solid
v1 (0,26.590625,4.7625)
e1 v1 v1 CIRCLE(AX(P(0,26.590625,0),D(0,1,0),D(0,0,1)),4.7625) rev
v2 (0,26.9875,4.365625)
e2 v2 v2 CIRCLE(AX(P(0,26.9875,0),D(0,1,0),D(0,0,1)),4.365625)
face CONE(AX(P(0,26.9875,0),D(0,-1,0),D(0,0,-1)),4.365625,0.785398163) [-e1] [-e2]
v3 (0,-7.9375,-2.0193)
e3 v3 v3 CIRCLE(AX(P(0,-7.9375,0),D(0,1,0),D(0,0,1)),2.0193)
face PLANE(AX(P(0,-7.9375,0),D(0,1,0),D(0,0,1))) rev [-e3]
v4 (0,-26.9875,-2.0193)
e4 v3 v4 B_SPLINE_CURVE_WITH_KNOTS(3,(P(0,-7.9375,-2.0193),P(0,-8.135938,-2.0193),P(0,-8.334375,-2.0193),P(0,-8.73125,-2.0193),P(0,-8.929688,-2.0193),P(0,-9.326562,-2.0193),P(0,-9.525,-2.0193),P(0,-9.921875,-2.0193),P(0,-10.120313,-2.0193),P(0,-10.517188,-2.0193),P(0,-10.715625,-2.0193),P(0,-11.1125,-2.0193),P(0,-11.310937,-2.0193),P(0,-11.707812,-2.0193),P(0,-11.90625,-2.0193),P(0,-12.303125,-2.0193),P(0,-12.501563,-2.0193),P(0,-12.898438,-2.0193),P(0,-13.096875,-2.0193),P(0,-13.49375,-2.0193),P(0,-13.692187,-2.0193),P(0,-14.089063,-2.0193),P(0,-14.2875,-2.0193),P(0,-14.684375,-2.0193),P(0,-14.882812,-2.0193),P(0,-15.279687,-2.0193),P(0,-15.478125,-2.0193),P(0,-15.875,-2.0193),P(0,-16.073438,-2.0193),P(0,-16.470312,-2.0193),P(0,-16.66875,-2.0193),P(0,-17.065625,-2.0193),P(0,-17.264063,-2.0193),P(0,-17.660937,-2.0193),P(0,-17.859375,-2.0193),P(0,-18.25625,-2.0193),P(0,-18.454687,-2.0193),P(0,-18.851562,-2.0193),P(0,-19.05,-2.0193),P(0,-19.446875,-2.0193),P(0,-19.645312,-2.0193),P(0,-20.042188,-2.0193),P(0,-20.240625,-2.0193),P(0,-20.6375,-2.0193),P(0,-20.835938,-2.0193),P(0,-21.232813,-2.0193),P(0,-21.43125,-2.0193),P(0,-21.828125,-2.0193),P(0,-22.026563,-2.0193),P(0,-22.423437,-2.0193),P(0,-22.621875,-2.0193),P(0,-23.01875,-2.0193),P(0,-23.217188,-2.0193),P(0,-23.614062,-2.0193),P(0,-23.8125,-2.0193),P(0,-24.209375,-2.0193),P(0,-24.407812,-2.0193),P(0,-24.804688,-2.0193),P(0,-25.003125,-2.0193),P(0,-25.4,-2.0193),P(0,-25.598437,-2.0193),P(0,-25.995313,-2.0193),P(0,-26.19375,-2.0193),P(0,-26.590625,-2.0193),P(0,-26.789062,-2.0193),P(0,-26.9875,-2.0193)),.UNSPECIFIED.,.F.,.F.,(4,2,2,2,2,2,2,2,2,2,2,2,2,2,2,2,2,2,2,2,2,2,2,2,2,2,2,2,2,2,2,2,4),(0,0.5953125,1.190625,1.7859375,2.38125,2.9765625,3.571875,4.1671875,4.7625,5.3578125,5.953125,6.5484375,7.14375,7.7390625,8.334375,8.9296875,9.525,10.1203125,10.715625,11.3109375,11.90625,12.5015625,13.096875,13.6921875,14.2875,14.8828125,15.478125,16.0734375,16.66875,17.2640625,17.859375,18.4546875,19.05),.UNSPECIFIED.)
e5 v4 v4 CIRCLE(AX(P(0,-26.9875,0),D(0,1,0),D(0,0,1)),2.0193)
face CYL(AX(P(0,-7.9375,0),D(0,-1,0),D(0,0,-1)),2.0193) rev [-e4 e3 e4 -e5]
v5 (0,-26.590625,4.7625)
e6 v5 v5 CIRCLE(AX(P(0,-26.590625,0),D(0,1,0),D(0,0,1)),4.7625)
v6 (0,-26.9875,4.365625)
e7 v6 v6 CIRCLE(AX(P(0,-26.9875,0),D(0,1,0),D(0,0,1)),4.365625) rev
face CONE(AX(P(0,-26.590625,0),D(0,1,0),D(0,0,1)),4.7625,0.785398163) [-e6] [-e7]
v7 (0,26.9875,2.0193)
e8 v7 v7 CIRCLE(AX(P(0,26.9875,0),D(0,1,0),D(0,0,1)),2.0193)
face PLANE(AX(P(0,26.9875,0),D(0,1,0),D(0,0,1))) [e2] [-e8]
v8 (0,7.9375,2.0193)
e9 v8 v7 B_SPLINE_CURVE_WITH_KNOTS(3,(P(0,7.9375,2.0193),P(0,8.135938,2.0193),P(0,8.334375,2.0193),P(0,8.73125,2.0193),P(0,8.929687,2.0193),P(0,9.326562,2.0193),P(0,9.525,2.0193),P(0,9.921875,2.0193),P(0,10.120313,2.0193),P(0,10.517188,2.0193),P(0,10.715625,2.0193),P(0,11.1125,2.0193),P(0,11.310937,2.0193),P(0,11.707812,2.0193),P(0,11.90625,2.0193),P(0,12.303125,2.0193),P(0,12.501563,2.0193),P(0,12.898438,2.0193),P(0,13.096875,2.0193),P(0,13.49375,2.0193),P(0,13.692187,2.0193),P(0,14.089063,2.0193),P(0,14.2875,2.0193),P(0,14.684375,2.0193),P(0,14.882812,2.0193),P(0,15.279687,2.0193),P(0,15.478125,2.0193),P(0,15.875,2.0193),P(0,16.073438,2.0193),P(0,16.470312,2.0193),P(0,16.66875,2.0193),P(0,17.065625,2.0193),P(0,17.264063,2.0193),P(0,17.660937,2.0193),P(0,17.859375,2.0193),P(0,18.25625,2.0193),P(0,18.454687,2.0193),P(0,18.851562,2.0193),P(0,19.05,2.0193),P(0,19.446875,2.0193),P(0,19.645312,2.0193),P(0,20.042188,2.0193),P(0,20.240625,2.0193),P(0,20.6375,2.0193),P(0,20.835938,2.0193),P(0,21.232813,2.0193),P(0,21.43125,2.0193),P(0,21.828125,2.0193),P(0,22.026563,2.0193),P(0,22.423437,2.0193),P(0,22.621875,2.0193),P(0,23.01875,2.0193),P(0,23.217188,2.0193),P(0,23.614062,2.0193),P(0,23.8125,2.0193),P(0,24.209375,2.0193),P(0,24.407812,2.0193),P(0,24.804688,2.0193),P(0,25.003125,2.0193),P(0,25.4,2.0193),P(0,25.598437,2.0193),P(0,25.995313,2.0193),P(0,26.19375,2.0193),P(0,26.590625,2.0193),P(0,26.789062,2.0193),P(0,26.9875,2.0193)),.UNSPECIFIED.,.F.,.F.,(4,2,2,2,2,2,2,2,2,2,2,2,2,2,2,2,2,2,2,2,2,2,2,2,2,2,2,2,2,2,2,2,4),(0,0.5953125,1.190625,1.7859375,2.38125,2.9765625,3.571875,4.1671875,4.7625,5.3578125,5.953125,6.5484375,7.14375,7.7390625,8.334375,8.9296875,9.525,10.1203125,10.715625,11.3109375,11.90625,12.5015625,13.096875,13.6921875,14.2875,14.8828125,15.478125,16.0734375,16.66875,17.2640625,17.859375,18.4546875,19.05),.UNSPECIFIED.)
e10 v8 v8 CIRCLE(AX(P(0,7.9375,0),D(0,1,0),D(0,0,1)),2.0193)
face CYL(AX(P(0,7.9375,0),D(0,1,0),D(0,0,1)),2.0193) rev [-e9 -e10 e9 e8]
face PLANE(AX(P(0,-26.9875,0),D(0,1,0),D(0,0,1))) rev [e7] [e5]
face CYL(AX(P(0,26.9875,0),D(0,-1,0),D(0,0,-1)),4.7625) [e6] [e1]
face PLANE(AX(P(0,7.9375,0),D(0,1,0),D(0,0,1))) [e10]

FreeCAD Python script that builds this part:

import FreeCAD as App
import Part
import Sketcher
from FreeCAD import Vector
Q = App.Units.Quantity


def edges_at(feature, points):
    """Names of the edges that pass closest to the given points."""
    edges = feature.Shape.Edges
    near = lambda p: min(range(len(edges)), key=lambda i: edges[i].distToShape(Part.Vertex(*p))[0])
    return sorted({f"Edge{near(p) + 1}" for p in points})

doc = App.newDocument("Part")
body = doc.addObject("PartDesign::Body", "Body")

# Sketch on XZ plane
sketch1 = doc.addObject("Sketcher::SketchObject", "Sketch")
body.addObject(sketch1)
sketch1.AttachmentSupport = (doc.XZ_Plane, [""])
sketch1.MapMode = "FlatFace"
sketch1.addGeometry(Part.Circle(Vector(0, 0, 0), Vector(0, 0, 1), 4.8), False)
sketch1.addConstraint([
    Sketcher.Constraint("Coincident", 0, 3, -1, 1),
    Sketcher.Constraint("Diameter", 0, Q("0.375 in")),
])
pad1 = doc.addObject("PartDesign::Pad", "Pad")
body.addObject(pad1)
pad1.Profile = sketch1
pad1.Length = Q("2.125 in")
pad1.Midplane = True
doc.recompute()

chamfer = doc.addObject("PartDesign::Chamfer", "Chamfer")
body.addObject(chamfer)
chamfer.Base = (pad1, edges_at(pad1, [(0, -26.988, -4.763), (0, 26.988, -4.763)]))
chamfer.Size = Q("0.015625 in")

# Sketch on XZ plane
sketch2 = doc.addObject("Sketcher::SketchObject", "Sketch001")
body.addObject(sketch2)
sketch2.AttachmentSupport = (doc.XZ_Plane, [""])
sketch2.MapMode = "FlatFace"
sketch2.AttachmentOffset = App.Placement(Vector(0, 0, -1.0625 * 25.4), App.Rotation())
sketch2.addGeometry(Part.Circle(Vector(0, 0, 0), Vector(0, 0, 1), 2), False)
sketch2.addConstraint([
    Sketcher.Constraint("Coincident", 0, 3, -1, 1),
    Sketcher.Constraint("Diameter", 0, Q("0.159 in")),
])
pocket1 = doc.addObject("PartDesign::Pocket", "Pocket")
body.addObject(pocket1)
pocket1.Profile = sketch2
pocket1.Length = Q("0.75 in")
pocket1.Reversed = True

# Sketch on XZ plane
sketch3 = doc.addObject("Sketcher::SketchObject", "Sketch002")
body.addObject(sketch3)
sketch3.AttachmentSupport = (doc.XZ_Plane, [""])
sketch3.MapMode = "FlatFace"
sketch3.AttachmentOffset = App.Placement(Vector(0, 0, 0.3125 * 25.4), App.Rotation())
sketch3.addGeometry(Part.Circle(Vector(0, 0, 0), Vector(0, 0, 1), 2), False)
sketch3.addConstraint([
    Sketcher.Constraint("Coincident", 0, 3, -1, 1),
    Sketcher.Constraint("Diameter", 0, Q("0.159 in")),
])
pocket2 = doc.addObject("PartDesign::Pocket", "Pocket001")
body.addObject(pocket2)
pocket2.Profile = sketch3
pocket2.Length = Q("0.75 in")
pocket2.Reversed = True

doc.recompute()
